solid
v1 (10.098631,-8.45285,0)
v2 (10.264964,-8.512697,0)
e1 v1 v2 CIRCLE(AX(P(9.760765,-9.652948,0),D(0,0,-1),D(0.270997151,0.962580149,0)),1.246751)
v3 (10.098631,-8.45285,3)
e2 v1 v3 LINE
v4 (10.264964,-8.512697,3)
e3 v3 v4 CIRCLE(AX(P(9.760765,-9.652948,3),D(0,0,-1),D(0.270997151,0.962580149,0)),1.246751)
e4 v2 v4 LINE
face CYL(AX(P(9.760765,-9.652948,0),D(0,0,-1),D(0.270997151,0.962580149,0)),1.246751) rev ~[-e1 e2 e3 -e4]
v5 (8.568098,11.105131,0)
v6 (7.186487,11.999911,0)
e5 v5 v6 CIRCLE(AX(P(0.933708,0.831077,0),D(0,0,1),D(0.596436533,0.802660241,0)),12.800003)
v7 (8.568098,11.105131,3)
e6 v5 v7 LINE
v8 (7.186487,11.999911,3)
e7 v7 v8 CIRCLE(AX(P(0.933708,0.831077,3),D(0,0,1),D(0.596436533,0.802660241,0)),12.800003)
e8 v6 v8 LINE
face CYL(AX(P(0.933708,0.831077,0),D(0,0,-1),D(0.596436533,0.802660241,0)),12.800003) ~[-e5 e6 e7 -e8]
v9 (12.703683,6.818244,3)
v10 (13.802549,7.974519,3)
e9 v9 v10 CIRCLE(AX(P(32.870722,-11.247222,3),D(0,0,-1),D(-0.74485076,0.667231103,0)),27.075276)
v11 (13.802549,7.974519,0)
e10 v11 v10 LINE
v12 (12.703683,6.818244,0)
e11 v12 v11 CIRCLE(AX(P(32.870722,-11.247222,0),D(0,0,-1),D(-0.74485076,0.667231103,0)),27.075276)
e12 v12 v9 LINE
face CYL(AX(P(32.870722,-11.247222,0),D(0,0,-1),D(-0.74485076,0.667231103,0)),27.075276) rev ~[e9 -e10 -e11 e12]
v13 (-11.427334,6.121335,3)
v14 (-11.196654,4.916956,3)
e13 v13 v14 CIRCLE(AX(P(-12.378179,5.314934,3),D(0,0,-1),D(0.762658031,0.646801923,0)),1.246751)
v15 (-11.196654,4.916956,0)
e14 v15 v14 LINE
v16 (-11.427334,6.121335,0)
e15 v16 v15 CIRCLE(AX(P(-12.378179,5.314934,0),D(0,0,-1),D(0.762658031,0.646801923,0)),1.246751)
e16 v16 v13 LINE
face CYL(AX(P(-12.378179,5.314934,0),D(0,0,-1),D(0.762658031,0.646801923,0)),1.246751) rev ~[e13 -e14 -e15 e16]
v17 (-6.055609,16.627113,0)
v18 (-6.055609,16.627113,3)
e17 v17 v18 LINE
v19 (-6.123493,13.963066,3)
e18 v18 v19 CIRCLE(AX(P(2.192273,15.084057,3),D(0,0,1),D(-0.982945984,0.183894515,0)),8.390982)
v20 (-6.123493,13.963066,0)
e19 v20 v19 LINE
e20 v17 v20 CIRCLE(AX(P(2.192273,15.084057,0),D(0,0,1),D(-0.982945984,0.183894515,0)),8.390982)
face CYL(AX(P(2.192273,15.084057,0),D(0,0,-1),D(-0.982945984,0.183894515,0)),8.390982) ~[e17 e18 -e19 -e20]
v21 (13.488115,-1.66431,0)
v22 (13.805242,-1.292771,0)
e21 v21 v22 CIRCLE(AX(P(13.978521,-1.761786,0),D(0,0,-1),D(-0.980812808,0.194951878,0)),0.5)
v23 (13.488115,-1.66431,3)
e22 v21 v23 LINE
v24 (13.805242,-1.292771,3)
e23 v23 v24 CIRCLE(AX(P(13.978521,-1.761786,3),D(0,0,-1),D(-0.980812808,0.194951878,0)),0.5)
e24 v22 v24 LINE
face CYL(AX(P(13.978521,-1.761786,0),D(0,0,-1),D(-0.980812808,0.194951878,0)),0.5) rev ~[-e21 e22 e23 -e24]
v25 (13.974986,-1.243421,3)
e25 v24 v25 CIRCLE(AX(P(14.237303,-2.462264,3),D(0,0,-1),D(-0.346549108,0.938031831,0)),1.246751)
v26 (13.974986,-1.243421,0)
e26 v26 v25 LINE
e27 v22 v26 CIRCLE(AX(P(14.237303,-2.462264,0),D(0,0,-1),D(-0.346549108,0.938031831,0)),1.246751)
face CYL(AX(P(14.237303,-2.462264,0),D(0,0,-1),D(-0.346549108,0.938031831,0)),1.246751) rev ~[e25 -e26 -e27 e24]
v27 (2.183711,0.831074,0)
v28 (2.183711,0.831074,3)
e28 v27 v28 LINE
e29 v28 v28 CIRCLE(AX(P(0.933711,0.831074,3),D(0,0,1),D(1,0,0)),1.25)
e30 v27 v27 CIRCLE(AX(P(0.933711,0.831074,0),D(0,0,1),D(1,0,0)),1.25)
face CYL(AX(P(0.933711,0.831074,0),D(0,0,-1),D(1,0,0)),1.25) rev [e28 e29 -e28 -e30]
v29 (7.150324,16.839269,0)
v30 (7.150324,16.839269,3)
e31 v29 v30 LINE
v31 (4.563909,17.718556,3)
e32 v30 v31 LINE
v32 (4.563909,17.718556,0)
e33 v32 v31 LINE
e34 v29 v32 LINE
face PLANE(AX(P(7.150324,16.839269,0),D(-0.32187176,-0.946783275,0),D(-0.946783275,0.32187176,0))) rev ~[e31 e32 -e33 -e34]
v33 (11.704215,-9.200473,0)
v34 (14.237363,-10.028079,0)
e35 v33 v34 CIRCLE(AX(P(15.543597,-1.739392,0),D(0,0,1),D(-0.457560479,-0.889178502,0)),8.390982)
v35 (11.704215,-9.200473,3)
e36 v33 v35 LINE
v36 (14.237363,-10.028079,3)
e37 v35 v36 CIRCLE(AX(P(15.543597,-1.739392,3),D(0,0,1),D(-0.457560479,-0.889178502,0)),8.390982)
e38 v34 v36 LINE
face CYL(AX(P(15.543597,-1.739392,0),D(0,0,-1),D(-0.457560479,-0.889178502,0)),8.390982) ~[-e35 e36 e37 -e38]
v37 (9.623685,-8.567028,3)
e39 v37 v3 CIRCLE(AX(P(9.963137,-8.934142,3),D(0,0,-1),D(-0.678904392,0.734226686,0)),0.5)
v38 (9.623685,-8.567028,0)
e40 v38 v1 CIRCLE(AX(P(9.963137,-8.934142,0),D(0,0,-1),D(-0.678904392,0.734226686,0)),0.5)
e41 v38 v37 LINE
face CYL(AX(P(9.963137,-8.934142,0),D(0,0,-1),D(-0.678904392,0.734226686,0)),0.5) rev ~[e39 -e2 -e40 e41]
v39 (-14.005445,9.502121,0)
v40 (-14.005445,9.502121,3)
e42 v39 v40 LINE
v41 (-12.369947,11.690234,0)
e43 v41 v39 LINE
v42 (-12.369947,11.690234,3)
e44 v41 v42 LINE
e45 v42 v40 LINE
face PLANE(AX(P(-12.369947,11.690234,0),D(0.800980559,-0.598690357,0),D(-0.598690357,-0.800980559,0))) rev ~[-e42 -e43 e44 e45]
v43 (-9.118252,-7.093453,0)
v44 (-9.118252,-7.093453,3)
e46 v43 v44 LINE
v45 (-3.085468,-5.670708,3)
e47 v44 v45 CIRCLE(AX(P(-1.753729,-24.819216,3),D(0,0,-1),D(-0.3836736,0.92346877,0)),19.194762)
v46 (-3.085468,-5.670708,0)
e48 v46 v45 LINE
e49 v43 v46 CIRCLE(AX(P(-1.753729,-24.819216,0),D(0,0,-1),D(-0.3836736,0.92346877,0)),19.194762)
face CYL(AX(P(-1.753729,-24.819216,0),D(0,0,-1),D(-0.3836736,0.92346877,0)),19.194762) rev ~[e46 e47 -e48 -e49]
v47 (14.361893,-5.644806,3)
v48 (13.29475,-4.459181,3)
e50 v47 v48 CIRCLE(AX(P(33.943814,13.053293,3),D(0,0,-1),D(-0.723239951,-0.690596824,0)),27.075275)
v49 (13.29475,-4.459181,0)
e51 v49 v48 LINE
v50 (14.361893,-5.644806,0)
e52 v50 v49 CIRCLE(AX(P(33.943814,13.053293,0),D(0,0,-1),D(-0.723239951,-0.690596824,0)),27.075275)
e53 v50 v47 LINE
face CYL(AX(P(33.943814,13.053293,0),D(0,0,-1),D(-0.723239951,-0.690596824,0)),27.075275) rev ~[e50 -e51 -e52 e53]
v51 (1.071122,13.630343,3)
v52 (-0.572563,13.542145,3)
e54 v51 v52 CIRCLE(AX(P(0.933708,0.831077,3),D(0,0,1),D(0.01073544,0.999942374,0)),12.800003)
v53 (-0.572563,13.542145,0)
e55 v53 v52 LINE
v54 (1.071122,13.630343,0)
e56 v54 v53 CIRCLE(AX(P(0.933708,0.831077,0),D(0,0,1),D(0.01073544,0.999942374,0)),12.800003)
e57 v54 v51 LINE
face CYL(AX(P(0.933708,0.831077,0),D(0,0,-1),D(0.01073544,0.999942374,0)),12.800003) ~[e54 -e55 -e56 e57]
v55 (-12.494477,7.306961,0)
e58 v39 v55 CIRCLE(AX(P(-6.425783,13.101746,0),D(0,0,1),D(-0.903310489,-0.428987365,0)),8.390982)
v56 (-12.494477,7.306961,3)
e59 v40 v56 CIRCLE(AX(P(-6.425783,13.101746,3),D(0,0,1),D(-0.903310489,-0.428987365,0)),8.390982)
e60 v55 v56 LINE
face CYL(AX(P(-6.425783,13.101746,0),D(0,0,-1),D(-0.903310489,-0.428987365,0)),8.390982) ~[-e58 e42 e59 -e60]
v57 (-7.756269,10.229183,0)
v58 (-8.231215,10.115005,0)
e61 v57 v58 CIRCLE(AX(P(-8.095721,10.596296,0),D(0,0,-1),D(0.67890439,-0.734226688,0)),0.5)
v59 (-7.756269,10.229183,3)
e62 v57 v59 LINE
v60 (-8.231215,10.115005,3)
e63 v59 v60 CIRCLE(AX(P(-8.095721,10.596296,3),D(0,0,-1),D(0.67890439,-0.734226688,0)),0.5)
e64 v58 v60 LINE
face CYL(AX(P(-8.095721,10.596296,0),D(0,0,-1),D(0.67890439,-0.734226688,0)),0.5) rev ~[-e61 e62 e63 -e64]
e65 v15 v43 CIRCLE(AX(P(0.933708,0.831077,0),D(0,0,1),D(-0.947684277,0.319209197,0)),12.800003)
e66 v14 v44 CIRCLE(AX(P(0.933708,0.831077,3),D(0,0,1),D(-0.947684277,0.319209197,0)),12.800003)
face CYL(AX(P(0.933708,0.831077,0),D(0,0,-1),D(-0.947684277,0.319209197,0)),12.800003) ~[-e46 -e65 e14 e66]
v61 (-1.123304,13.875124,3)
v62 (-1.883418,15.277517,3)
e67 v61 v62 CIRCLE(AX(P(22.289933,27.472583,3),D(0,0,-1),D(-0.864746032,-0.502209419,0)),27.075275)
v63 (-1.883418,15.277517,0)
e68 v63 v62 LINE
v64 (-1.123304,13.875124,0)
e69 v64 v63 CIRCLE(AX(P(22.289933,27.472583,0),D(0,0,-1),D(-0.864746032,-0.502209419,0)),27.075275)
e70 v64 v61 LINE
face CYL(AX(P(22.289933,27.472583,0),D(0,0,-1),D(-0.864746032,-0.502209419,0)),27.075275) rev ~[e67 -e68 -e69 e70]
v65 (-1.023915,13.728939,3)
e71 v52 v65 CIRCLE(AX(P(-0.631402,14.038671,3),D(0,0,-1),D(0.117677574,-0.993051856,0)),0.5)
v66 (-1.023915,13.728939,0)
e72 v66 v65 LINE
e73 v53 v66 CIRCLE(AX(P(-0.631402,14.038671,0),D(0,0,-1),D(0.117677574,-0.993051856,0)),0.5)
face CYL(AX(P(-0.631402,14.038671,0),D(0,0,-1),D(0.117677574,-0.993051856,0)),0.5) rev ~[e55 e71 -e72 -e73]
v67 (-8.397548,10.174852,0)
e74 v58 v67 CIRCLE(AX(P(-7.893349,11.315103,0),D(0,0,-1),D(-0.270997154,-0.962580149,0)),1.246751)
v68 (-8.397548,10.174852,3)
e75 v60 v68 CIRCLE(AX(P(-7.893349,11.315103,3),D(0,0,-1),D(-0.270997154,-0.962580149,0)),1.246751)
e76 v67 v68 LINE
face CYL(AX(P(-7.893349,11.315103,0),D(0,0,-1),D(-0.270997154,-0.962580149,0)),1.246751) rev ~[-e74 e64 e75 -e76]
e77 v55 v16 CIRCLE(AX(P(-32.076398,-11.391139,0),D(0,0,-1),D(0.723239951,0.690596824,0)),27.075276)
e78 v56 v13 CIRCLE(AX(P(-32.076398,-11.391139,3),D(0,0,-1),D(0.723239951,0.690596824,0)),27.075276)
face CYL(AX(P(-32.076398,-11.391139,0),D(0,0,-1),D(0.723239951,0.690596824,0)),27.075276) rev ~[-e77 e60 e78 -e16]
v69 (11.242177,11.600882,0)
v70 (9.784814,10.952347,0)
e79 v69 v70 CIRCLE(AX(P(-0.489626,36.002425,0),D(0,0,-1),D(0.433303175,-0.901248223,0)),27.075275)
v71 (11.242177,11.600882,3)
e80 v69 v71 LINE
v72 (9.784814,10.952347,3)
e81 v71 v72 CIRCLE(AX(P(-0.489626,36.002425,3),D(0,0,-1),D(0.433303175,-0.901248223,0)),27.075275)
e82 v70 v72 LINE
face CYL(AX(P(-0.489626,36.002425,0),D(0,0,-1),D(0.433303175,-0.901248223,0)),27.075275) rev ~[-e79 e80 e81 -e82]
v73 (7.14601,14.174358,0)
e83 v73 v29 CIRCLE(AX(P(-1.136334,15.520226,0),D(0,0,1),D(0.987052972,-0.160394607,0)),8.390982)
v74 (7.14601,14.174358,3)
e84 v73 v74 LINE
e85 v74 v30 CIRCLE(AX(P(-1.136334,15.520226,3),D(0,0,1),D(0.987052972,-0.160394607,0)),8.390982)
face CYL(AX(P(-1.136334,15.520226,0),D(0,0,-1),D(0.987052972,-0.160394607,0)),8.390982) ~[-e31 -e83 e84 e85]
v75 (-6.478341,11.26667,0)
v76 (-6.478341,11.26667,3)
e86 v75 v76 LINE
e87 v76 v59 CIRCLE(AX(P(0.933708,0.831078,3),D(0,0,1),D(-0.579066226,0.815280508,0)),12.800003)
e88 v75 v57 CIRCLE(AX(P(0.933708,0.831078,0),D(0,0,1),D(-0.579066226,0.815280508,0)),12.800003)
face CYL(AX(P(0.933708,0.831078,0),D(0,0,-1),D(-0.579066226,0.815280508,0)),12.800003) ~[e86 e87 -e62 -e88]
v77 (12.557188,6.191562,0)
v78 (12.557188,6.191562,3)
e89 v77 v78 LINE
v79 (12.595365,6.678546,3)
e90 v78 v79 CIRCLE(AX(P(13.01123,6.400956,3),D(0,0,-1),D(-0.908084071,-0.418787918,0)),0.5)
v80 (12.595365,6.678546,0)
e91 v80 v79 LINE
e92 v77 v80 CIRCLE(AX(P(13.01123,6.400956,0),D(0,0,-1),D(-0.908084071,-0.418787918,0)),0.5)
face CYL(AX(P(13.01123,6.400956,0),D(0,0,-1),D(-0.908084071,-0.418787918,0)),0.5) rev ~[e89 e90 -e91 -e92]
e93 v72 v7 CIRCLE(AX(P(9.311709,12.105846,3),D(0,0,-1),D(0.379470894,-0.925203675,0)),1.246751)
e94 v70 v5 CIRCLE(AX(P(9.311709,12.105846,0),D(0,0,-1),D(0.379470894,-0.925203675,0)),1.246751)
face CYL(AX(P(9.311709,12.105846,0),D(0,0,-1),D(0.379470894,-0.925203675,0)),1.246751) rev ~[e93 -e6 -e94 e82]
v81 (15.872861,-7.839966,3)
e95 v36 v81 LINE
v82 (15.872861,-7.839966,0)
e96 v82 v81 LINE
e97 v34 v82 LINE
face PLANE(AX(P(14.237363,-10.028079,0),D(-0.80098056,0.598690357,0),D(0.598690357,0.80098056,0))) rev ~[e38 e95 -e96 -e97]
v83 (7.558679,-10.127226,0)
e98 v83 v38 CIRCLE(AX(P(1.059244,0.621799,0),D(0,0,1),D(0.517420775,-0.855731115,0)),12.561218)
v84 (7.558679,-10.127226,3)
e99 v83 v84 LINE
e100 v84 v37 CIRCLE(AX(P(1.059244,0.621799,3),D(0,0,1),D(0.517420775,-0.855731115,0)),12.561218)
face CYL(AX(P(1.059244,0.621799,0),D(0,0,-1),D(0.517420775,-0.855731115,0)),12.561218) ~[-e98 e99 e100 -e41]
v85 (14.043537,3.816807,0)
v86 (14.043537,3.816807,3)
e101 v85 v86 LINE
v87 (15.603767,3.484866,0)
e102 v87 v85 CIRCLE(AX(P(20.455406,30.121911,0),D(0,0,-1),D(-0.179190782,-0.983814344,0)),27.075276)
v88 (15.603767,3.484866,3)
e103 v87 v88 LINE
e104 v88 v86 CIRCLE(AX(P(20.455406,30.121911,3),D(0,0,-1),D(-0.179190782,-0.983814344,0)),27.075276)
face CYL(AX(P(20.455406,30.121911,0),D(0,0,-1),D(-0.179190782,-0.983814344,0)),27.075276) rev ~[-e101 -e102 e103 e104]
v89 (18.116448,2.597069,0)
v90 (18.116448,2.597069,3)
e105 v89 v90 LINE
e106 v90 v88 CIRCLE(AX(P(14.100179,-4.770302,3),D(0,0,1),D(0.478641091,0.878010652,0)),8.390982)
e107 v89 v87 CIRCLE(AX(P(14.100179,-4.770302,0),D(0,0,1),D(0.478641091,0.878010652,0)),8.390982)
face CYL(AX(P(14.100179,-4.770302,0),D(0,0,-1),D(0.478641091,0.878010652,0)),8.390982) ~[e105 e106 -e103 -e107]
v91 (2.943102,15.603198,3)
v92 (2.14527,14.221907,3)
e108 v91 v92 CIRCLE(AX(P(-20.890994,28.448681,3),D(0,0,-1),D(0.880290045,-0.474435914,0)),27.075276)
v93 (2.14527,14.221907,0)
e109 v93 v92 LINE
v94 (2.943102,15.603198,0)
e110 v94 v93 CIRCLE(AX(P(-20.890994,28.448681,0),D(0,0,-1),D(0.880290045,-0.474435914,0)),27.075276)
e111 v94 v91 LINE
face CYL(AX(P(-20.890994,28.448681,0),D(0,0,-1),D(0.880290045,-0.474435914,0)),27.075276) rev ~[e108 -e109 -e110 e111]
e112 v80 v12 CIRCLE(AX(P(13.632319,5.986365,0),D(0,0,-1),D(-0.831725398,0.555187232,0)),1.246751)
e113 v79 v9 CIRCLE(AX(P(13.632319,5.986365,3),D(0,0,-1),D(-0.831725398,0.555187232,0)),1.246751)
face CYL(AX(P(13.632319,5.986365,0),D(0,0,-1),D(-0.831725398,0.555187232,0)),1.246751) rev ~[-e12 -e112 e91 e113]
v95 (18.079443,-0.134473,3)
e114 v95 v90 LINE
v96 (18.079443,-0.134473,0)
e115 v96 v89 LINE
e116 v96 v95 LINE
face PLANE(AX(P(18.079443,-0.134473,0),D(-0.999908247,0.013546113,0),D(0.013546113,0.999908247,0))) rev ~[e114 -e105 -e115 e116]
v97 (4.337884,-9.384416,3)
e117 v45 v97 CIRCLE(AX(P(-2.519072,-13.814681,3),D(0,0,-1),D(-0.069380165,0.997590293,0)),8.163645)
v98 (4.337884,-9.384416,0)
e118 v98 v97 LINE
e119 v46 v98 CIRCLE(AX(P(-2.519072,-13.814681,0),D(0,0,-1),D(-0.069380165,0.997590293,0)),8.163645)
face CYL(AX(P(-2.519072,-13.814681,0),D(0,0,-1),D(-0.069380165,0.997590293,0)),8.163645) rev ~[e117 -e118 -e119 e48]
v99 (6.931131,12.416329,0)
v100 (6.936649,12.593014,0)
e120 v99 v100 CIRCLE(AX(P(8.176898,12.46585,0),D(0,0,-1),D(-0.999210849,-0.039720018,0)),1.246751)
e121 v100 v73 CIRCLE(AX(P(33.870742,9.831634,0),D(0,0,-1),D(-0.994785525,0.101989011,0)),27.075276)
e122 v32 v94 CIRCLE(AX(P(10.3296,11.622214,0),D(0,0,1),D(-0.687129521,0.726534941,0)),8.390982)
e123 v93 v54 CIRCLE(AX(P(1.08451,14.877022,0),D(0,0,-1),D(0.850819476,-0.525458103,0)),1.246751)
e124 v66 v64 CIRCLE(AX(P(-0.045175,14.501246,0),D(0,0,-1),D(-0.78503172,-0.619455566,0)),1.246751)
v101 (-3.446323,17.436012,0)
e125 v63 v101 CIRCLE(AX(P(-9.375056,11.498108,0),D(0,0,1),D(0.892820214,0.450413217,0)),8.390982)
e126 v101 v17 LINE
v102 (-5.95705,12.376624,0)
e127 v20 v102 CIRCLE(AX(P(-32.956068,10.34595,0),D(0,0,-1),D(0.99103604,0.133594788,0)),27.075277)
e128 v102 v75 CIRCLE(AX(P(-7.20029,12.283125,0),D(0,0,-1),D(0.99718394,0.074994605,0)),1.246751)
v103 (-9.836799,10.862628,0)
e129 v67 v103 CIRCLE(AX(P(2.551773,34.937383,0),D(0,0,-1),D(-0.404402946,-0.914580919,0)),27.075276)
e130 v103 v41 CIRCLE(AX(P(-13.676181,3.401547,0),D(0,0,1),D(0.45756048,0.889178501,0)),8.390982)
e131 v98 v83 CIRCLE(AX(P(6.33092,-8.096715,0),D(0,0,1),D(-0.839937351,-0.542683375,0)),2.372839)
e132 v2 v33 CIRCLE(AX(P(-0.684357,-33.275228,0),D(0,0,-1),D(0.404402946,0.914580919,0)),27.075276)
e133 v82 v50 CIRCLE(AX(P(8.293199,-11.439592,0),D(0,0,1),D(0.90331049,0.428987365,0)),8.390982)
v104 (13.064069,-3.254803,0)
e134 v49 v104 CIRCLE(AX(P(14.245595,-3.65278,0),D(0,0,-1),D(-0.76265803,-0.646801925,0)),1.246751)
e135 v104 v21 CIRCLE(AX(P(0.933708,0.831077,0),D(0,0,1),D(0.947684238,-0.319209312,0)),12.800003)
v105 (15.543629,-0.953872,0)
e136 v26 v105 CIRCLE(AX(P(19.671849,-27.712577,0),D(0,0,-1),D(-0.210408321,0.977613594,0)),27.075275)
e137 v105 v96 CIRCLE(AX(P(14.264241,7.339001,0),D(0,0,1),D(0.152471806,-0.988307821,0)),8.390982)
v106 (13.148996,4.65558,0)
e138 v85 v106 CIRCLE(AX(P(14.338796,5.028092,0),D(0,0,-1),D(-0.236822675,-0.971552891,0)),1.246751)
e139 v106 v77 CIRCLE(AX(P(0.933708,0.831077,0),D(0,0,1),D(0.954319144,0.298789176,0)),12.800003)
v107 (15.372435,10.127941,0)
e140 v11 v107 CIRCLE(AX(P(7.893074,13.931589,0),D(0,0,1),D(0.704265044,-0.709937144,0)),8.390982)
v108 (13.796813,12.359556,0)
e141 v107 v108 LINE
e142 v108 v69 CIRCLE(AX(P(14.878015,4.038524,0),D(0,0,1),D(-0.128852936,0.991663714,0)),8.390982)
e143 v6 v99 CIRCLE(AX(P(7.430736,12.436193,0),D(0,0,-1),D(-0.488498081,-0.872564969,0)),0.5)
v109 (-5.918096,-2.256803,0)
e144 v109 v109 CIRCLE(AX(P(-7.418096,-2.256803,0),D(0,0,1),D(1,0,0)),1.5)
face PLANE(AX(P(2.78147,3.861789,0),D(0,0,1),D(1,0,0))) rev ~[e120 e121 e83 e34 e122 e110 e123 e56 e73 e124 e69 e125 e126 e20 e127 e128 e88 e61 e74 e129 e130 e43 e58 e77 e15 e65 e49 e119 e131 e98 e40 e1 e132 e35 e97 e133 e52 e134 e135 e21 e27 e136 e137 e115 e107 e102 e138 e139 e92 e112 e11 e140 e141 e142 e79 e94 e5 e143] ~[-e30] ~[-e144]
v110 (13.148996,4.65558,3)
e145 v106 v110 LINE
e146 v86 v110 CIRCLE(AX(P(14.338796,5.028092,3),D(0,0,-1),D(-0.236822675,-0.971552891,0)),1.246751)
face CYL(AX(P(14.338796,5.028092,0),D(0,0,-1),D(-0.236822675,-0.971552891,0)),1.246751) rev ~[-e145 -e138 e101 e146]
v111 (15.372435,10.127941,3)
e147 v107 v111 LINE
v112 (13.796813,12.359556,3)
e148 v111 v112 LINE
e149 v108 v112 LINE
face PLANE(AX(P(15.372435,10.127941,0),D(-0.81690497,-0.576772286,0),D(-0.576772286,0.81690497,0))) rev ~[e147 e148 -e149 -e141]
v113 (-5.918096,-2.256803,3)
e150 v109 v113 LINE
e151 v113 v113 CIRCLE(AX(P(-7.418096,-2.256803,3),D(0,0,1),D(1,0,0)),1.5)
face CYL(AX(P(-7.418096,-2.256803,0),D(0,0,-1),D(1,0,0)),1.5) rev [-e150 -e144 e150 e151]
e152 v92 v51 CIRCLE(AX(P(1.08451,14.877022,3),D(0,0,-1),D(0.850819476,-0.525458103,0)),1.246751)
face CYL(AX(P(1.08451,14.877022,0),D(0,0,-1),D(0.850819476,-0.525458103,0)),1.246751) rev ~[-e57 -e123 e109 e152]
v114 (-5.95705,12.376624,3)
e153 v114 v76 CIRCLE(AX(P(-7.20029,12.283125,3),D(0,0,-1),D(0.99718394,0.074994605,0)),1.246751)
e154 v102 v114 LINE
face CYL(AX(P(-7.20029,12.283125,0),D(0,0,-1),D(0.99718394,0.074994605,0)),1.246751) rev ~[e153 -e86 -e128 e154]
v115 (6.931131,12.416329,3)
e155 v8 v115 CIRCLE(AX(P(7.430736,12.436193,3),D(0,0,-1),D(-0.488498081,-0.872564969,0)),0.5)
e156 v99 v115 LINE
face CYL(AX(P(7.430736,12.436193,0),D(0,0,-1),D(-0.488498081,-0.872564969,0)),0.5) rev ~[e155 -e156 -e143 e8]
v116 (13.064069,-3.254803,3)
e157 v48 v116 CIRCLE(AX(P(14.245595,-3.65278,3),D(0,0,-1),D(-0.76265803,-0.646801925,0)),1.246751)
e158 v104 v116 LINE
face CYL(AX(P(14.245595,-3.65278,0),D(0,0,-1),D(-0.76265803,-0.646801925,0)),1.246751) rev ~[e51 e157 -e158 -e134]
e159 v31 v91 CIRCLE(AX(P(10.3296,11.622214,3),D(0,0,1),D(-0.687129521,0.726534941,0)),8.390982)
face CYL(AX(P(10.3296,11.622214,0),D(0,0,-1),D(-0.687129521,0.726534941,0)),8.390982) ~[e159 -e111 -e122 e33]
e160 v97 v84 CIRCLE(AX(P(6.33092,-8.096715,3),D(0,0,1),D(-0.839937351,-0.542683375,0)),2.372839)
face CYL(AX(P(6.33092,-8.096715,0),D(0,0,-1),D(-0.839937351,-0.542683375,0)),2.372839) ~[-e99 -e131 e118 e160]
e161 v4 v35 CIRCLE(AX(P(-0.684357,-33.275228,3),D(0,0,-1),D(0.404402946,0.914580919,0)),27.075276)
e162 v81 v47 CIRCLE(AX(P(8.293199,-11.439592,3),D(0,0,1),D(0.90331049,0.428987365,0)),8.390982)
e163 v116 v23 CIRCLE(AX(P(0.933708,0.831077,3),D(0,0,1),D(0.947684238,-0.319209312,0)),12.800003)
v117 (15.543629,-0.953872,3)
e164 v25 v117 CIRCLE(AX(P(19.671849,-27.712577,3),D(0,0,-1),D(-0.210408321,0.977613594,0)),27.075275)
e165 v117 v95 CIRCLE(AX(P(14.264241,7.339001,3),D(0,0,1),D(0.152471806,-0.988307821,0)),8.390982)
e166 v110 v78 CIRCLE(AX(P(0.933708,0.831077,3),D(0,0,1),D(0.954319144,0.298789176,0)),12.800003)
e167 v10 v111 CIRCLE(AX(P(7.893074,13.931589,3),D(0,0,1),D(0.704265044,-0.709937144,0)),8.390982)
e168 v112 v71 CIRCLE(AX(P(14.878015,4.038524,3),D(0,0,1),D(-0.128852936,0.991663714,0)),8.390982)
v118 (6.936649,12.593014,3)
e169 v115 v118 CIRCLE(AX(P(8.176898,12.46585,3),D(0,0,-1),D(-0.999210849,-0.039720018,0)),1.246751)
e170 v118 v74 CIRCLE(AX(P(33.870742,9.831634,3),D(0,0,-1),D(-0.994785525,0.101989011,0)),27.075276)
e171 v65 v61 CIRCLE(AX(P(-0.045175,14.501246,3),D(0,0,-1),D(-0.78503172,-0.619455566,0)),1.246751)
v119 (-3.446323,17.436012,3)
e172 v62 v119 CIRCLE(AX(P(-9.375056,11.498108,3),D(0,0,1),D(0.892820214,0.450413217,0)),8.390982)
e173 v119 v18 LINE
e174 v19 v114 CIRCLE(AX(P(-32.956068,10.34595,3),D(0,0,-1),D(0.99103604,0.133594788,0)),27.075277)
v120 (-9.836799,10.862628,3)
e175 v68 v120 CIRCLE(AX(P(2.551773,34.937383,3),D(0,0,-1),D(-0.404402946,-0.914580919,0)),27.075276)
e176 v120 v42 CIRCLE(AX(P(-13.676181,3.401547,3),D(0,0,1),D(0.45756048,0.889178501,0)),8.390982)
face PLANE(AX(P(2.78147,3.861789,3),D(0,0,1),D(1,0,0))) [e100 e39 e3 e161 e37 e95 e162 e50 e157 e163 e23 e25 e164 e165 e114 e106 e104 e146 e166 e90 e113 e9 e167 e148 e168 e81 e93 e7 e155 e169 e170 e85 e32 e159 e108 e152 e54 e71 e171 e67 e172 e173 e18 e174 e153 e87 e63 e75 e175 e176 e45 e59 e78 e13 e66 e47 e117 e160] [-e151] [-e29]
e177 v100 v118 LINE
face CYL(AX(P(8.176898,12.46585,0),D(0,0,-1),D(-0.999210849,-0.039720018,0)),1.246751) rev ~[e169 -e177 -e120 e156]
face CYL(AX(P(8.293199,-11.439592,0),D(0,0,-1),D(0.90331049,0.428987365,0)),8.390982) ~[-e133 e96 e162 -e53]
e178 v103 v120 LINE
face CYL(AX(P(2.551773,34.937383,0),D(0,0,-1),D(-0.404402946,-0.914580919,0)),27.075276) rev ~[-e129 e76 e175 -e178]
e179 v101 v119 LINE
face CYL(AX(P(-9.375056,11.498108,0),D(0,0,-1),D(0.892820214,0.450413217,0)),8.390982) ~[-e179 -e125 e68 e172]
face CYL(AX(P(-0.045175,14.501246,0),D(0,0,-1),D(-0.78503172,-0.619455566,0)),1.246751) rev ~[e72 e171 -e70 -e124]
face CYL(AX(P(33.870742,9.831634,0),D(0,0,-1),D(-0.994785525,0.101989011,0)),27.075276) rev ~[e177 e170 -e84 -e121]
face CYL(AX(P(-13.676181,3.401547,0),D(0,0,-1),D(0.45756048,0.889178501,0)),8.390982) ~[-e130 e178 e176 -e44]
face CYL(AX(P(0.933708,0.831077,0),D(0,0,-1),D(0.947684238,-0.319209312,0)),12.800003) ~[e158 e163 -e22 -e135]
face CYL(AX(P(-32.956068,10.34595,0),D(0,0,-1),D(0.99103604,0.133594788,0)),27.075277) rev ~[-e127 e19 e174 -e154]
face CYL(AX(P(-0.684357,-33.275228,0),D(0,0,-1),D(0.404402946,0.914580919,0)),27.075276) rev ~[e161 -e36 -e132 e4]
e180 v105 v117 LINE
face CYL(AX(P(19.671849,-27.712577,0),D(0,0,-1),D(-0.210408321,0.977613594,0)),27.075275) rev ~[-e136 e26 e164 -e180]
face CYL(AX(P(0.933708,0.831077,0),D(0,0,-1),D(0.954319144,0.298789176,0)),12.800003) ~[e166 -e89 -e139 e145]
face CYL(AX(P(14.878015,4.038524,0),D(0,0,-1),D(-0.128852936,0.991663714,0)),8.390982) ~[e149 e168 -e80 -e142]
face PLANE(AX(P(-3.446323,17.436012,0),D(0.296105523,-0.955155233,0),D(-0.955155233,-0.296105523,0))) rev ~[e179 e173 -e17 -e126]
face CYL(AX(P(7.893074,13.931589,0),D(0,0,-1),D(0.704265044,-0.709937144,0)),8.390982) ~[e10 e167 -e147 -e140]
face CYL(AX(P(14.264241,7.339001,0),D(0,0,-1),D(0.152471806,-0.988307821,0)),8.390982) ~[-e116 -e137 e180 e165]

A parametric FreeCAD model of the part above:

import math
import FreeCAD as App
import Part
import Sketcher
from FreeCAD import Vector

doc = App.newDocument("Part")
body = doc.addObject("PartDesign::Body", "Body")

sketch1 = body.newObject("Sketcher::SketchObject", "Sketch")
sketch1.AttachmentSupport = (doc.getObject("XY_Plane"), [""])
sketch1.MapMode = "FlatFace"
sketch1.addGeometry([
    Part.LineSegment(Vector(18.079443, -0.134473, 0), Vector(18.116448, 2.597069, 0)),
    Part.ArcOfCircle(Part.Circle(Vector(14.100179, -4.770302, 0), Vector(0, 0, 1), 8.390982), math.radians(61.403313), math.radians(79.677367)),
    Part.ArcOfCircle(Part.Circle(Vector(20.455406, 30.121911, 0), Vector(0, 0, 1), 27.075276), math.radians(-103.698718), math.radians(-100.322629)),
    Part.ArcOfCircle(Part.Circle(Vector(14.338796, 5.028092, 0), Vector(0, 0, 1), 1.246751), math.radians(-162.615291), math.radians(-103.699088)),
    Part.ArcOfCircle(Part.Circle(Vector(0.933708, 0.831077, 0), Vector(0, 0, 1), 12.800003), math.radians(17.384893), math.radians(24.758077)),
    Part.ArcOfCircle(Part.Circle(Vector(13.01123, 6.400956, 0), Vector(0, 0, 1), 0.5), math.radians(146.276908), math.radians(204.758087)),
    Part.ArcOfCircle(Part.Circle(Vector(13.632319, 5.986365, 0), Vector(0, 0, 1), 1.246751), math.radians(138.145829), math.radians(146.276388)),
    Part.ArcOfCircle(Part.Circle(Vector(32.870722, -11.247222, 0), Vector(0, 0, 1), 27.075276), math.radians(134.770207), math.radians(138.146282)),
    Part.ArcOfCircle(Part.Circle(Vector(7.893074, 13.931589, 0), Vector(0, 0, 1), 8.390982), math.radians(-45.229801), math.radians(-26.955725)),
    Part.LineSegment(Vector(15.372435, 10.127941, 0), Vector(13.796813, 12.359556, 0)),
    Part.ArcOfCircle(Part.Circle(Vector(14.878015, 4.038524, 0), Vector(0, 0, 1), 8.390982), math.radians(97.403313), math.radians(115.677367)),
    Part.ArcOfCircle(Part.Circle(Vector(-0.489626, 36.002425, 0), Vector(0, 0, 1), 27.075275), math.radians(-67.698718), math.radians(-64.322629)),
    Part.ArcOfCircle(Part.Circle(Vector(9.311709, 12.105846, 0), Vector(0, 0, 1), 1.246751), math.radians(-126.615291), math.radians(-67.699088)),
    Part.ArcOfCircle(Part.Circle(Vector(0.933708, 0.831077, 0), Vector(0, 0, 1), 12.800003), math.radians(53.384893), math.radians(60.758077)),
    Part.ArcOfCircle(Part.Circle(Vector(7.430736, 12.436193, 0), Vector(0, 0, 1), 0.5), math.radians(-177.723092), math.radians(-119.241913)),
    Part.ArcOfCircle(Part.Circle(Vector(8.176898, 12.46585, 0), Vector(0, 0, 1), 1.246751), math.radians(174.145829), math.radians(182.276388)),
    Part.ArcOfCircle(Part.Circle(Vector(33.870742, 9.831634, 0), Vector(0, 0, 1), 27.075276), math.radians(170.770207), math.radians(174.146282)),
    Part.ArcOfCircle(Part.Circle(Vector(-1.136334, 15.520226, 0), Vector(0, 0, 1), 8.390982), math.radians(-9.229801), math.radians(9.044275)),
    Part.LineSegment(Vector(7.150324, 16.839269, 0), Vector(4.563909, 17.718556, 0)),
    Part.ArcOfCircle(Part.Circle(Vector(10.3296, 11.622214, 0), Vector(0, 0, 1), 8.390982), math.radians(133.403313), math.radians(151.677367)),
    Part.ArcOfCircle(Part.Circle(Vector(-20.890994, 28.448681, 0), Vector(0, 0, 1), 27.075276), math.radians(-31.698718), math.radians(-28.322629)),
    Part.ArcOfCircle(Part.Circle(Vector(1.08451, 14.877022, 0), Vector(0, 0, 1), 1.246751), math.radians(-90.615291), math.radians(-31.699088)),
    Part.ArcOfCircle(Part.Circle(Vector(0.933708, 0.831077, 0), Vector(0, 0, 1), 12.800003), math.radians(89.384893), math.radians(96.758077)),
    Part.ArcOfCircle(Part.Circle(Vector(-0.631402, 14.038671, 0), Vector(0, 0, 1), 0.5), math.radians(-141.723092), math.radians(-83.241912)),
    Part.ArcOfCircle(Part.Circle(Vector(-0.045175, 14.501246, 0), Vector(0, 0, 1), 1.246751), math.radians(-149.85417), math.radians(-141.723612)),
    Part.ArcOfCircle(Part.Circle(Vector(22.289933, 27.472583, 0), Vector(0, 0, 1), 27.075275), math.radians(-153.229793), math.radians(-149.853718)),
    Part.ArcOfCircle(Part.Circle(Vector(-9.375056, 11.498108, 0), Vector(0, 0, 1), 8.390982), math.radians(26.770199), math.radians(45.044275)),
    Part.LineSegment(Vector(-3.446323, 17.436012, 0), Vector(-6.055609, 16.627113, 0)),
    Part.ArcOfCircle(Part.Circle(Vector(2.192273, 15.084057, 0), Vector(0, 0, 1), 8.390982), math.radians(169.403313), math.radians(187.677367)),
    Part.ArcOfCircle(Part.Circle(Vector(-32.956068, 10.34595, 0), Vector(0, 0, 1), 27.075277), math.radians(4.301282), math.radians(7.677371)),
    Part.ArcOfCircle(Part.Circle(Vector(-7.20029, 12.283125, 0), Vector(0, 0, 1), 1.246751), math.radians(-54.615291), math.radians(4.300912)),
    Part.ArcOfCircle(Part.Circle(Vector(0.933708, 0.831078, 0), Vector(0, 0, 1), 12.800003), math.radians(125.384893), math.radians(132.758077)),
    Part.ArcOfCircle(Part.Circle(Vector(-8.095721, 10.596296, 0), Vector(0, 0, 1), 0.5), math.radians(-105.723092), math.radians(-47.241913)),
    Part.ArcOfCircle(Part.Circle(Vector(-7.893349, 11.315103, 0), Vector(0, 0, 1), 1.246751), math.radians(-113.854171), math.radians(-105.723612)),
    Part.ArcOfCircle(Part.Circle(Vector(2.551773, 34.937383, 0), Vector(0, 0, 1), 27.075276), math.radians(-117.229793), math.radians(-113.853718)),
    Part.ArcOfCircle(Part.Circle(Vector(-13.676181, 3.401547, 0), Vector(0, 0, 1), 8.390982), math.radians(62.770199), math.radians(81.044275)),
    Part.LineSegment(Vector(-12.369947, 11.690234, 0), Vector(-14.005445, 9.502121, 0)),
    Part.ArcOfCircle(Part.Circle(Vector(-6.425783, 13.101746, 0), Vector(0, 0, 1), 8.390982), math.radians(-154.596687), math.radians(-136.322633)),
    Part.ArcOfCircle(Part.Circle(Vector(-32.076398, -11.391139, 0), Vector(0, 0, 1), 27.075276), math.radians(40.301282), math.radians(43.677371)),
    Part.ArcOfCircle(Part.Circle(Vector(-12.378179, 5.314934, 0), Vector(0, 0, 1), 1.246751), math.radians(-18.615291), math.radians(40.300912)),
    Part.ArcOfCircle(Part.Circle(Vector(0.933708, 0.831077, 0), Vector(0, 0, 1), 12.800003), math.radians(161.384893), math.radians(218.250715)),
    Part.ArcOfCircle(Part.Circle(Vector(-1.753729, -24.819216, 0), Vector(0, 0, 1), 19.194762), math.radians(93.978396), math.radians(112.56142)),
    Part.ArcOfCircle(Part.Circle(Vector(-2.519072, -13.814681, 0), Vector(0, 0, 1), 8.163645), math.radians(32.86642), math.radians(93.978387)),
    Part.ArcOfCircle(Part.Circle(Vector(6.33092, -8.096715, 0), Vector(0, 0, 1), 2.372839), math.radians(-147.133505), math.radians(-58.840529)),
    Part.ArcOfCircle(Part.Circle(Vector(1.059244, 0.621799, 0), Vector(0, 0, 1), 12.561218), math.radians(-58.840599), math.radians(-47.014274)),
    Part.ArcOfCircle(Part.Circle(Vector(9.963137, -8.934142, 0), Vector(0, 0, 1), 0.5), math.radians(74.276908), math.radians(132.758088)),
    Part.ArcOfCircle(Part.Circle(Vector(9.760765, -9.652948, 0), Vector(0, 0, 1), 1.246751), math.radians(66.14583), math.radians(74.276388)),
    Part.ArcOfCircle(Part.Circle(Vector(-0.684357, -33.275228, 0), Vector(0, 0, 1), 27.075276), math.radians(62.770207), math.radians(66.146282)),
    Part.ArcOfCircle(Part.Circle(Vector(15.543597, -1.739392, 0), Vector(0, 0, 1), 8.390982), math.radians(-117.229801), math.radians(-98.955725)),
    Part.LineSegment(Vector(14.237363, -10.028079, 0), Vector(15.872861, -7.839966, 0)),
    Part.ArcOfCircle(Part.Circle(Vector(8.293199, -11.439592, 0), Vector(0, 0, 1), 8.390982), math.radians(25.403313), math.radians(43.677367)),
    Part.ArcOfCircle(Part.Circle(Vector(33.943814, 13.053293, 0), Vector(0, 0, 1), 27.075275), math.radians(-139.698718), math.radians(-136.322629)),
    Part.ArcOfCircle(Part.Circle(Vector(14.245595, -3.65278, 0), Vector(0, 0, 1), 1.246751), math.radians(161.38478), math.radians(220.300912)),
    Part.ArcOfCircle(Part.Circle(Vector(0.933708, 0.831077, 0), Vector(0, 0, 1), 12.800003), math.radians(-18.615114), math.radians(-11.241923)),
    Part.ArcOfCircle(Part.Circle(Vector(13.978521, -1.761786, 0), Vector(0, 0, 1), 0.5), math.radians(110.276908), math.radians(168.758088)),
    Part.ArcOfCircle(Part.Circle(Vector(14.237303, -2.462264, 0), Vector(0, 0, 1), 1.246751), math.radians(102.14583), math.radians(110.276388)),
    Part.ArcOfCircle(Part.Circle(Vector(19.671849, -27.712577, 0), Vector(0, 0, 1), 27.075275), math.radians(98.770207), math.radians(102.146282)),
    Part.ArcOfCircle(Part.Circle(Vector(14.264241, 7.339001, 0), Vector(0, 0, 1), 8.390982), math.radians(-81.229801), math.radians(-62.955725)),
    Part.Circle(Vector(-7.418096, -2.256803, 0), Vector(0, 0, 1), 1.5),
    Part.Circle(Vector(0.933711, 0.831074, 0), Vector(0, 0, 1), 1.25),
], False)
sketch1.addConstraint([
    Sketcher.Constraint("Coincident", 0, 2, 1, 1),
    Sketcher.Constraint("Coincident", 1, 2, 2, 2),
    Sketcher.Constraint("Coincident", 2, 1, 3, 2),
    Sketcher.Constraint("Coincident", 3, 1, 4, 1),
    Sketcher.Constraint("Coincident", 4, 2, 5, 2),
    Sketcher.Constraint("Coincident", 5, 1, 6, 2),
    Sketcher.Constraint("Coincident", 6, 1, 7, 2),
    Sketcher.Constraint("Coincident", 7, 1, 8, 1),
    Sketcher.Constraint("Coincident", 8, 2, 9, 1),
    Sketcher.Constraint("Coincident", 9, 2, 10, 1),
    Sketcher.Constraint("Coincident", 10, 2, 11, 2),
    Sketcher.Constraint("Coincident", 11, 1, 12, 2),
    Sketcher.Constraint("Coincident", 12, 1, 13, 1),
    Sketcher.Constraint("Coincident", 13, 2, 14, 2),
    Sketcher.Constraint("Coincident", 14, 1, 15, 2),
    Sketcher.Constraint("Coincident", 15, 1, 16, 2),
    Sketcher.Constraint("Coincident", 16, 1, 17, 1),
    Sketcher.Constraint("Coincident", 17, 2, 18, 1),
    Sketcher.Constraint("Coincident", 18, 2, 19, 1),
    Sketcher.Constraint("Coincident", 19, 2, 20, 2),
    Sketcher.Constraint("Coincident", 20, 1, 21, 2),
    Sketcher.Constraint("Coincident", 21, 1, 22, 1),
    Sketcher.Constraint("Coincident", 22, 2, 23, 2),
    Sketcher.Constraint("Coincident", 23, 1, 24, 2),
    Sketcher.Constraint("Coincident", 24, 1, 25, 2),
    Sketcher.Constraint("Coincident", 25, 1, 26, 1),
    Sketcher.Constraint("Coincident", 26, 2, 27, 1),
    Sketcher.Constraint("Coincident", 27, 2, 28, 1),
    Sketcher.Constraint("Coincident", 28, 2, 29, 2),
    Sketcher.Constraint("Coincident", 29, 1, 30, 2),
    Sketcher.Constraint("Coincident", 30, 1, 31, 1),
    Sketcher.Constraint("Coincident", 31, 2, 32, 2),
    Sketcher.Constraint("Coincident", 32, 1, 33, 2),
    Sketcher.Constraint("Coincident", 33, 1, 34, 2),
    Sketcher.Constraint("Coincident", 34, 1, 35, 1),
    Sketcher.Constraint("Coincident", 35, 2, 36, 1),
    Sketcher.Constraint("Coincident", 36, 2, 37, 1),
    Sketcher.Constraint("Coincident", 37, 2, 38, 2),
    Sketcher.Constraint("Coincident", 38, 1, 39, 2),
    Sketcher.Constraint("Coincident", 39, 1, 40, 1),
    Sketcher.Constraint("Coincident", 40, 2, 41, 2),
    Sketcher.Constraint("Coincident", 41, 1, 42, 2),
    Sketcher.Constraint("Coincident", 42, 1, 43, 1),
    Sketcher.Constraint("Coincident", 43, 2, 44, 1),
    Sketcher.Constraint("Coincident", 44, 2, 45, 2),
    Sketcher.Constraint("Coincident", 45, 1, 46, 2),
    Sketcher.Constraint("Coincident", 46, 1, 47, 2),
    Sketcher.Constraint("Coincident", 47, 1, 48, 1),
    Sketcher.Constraint("Coincident", 48, 2, 49, 1),
    Sketcher.Constraint("Coincident", 49, 2, 50, 1),
    Sketcher.Constraint("Coincident", 50, 2, 51, 2),
    Sketcher.Constraint("Coincident", 51, 1, 52, 2),
    Sketcher.Constraint("Coincident", 52, 1, 53, 1),
    Sketcher.Constraint("Coincident", 53, 2, 54, 2),
    Sketcher.Constraint("Coincident", 54, 1, 55, 2),
    Sketcher.Constraint("Coincident", 55, 1, 56, 2),
    Sketcher.Constraint("Coincident", 56, 1, 57, 1),
    Sketcher.Constraint("Coincident", 57, 2, 0, 1),
    Sketcher.Constraint("Coincident", 13, 3, 4, 3),
    Sketcher.Constraint("Coincident", 22, 3, 4, 3),
    Sketcher.Constraint("Coincident", 31, 3, 4, 3),
    Sketcher.Constraint("Coincident", 40, 3, 4, 3),
    Sketcher.Constraint("Coincident", 53, 3, 4, 3),
    Sketcher.Constraint("Coincident", 59, 3, 4, 3),
    Sketcher.Constraint("Diameter", 58, 3.0),
    Sketcher.Constraint("Diameter", 59, 2.5),
    Sketcher.Constraint("Radius", 5, 0.5),
    Sketcher.Constraint("Radius", 14, 0.5),
    Sketcher.Constraint("Radius", 23, 0.5),
    Sketcher.Constraint("Radius", 32, 0.5),
    Sketcher.Constraint("Radius", 45, 0.5),
    Sketcher.Constraint("Radius", 54, 0.5),
    Sketcher.Constraint("Radius", 3, 1.246751),
    Sketcher.Constraint("Radius", 6, 1.246751),
    Sketcher.Constraint("Radius", 12, 1.246751),
    Sketcher.Constraint("Radius", 15, 1.246751),
    Sketcher.Constraint("Radius", 21, 1.246751),
    Sketcher.Constraint("Radius", 24, 1.246751),
    Sketcher.Constraint("Radius", 30, 1.246751),
    Sketcher.Constraint("Radius", 33, 1.246751),
    Sketcher.Constraint("Radius", 39, 1.246751),
    Sketcher.Constraint("Radius", 41, 19.194762),
    Sketcher.Constraint("Radius", 43, 2.372839),
    Sketcher.Constraint("Radius", 46, 1.246751),
    Sketcher.Constraint("Radius", 52, 1.246751),
    Sketcher.Constraint("Radius", 55, 1.246751),
    Sketcher.Constraint("DistanceY", -1, 1, 57, 3, 7.339001),
    Sketcher.Constraint("Radius", 1, 8.390982),
    Sketcher.Constraint("Radius", 2, 27.075276),
    Sketcher.Constraint("Radius", 4, 12.800003),
    Sketcher.Constraint("Radius", 7, 27.075276),
    Sketcher.Constraint("Radius", 8, 8.390982),
    Sketcher.Constraint("Radius", 10, 8.390982),
    Sketcher.Constraint("Radius", 11, 27.075275),
    Sketcher.Constraint("Radius", 13, 12.800003),
    Sketcher.Constraint("Radius", 16, 27.075276),
    Sketcher.Constraint("Radius", 17, 8.390982),
    Sketcher.Constraint("Radius", 19, 8.390982),
    Sketcher.Constraint("Radius", 20, 27.075276),
    Sketcher.Constraint("Radius", 22, 12.800003),
    Sketcher.Constraint("Radius", 25, 27.075275),
    Sketcher.Constraint("Radius", 26, 8.390982),
    Sketcher.Constraint("Radius", 28, 8.390982),
    Sketcher.Constraint("Radius", 29, 27.075277),
    Sketcher.Constraint("Radius", 31, 12.800003),
    Sketcher.Constraint("Radius", 34, 27.075276),
    Sketcher.Constraint("Radius", 35, 8.390982),
    Sketcher.Constraint("Radius", 37, 8.390982),
    Sketcher.Constraint("Radius", 38, 27.075276),
    Sketcher.Constraint("Radius", 40, 12.800003),
    Sketcher.Constraint("Radius", 42, 8.163645),
    Sketcher.Constraint("Radius", 44, 12.561218),
    Sketcher.Constraint("Radius", 47, 27.075276),
    Sketcher.Constraint("Radius", 48, 8.390982),
    Sketcher.Constraint("Radius", 50, 8.390982),
    Sketcher.Constraint("Radius", 51, 27.075275),
    Sketcher.Constraint("Radius", 53, 12.800003),
    Sketcher.Constraint("Radius", 56, 27.075275),
    Sketcher.Constraint("Radius", 57, 8.390982),
    Sketcher.Constraint("DistanceX", -1, 1, 15, 3, 8.176898),
    Sketcher.Constraint("DistanceX", -1, 1, 19, 3, 10.3296),
    Sketcher.Constraint("DistanceX", 23, 3, -1, 1, 0.631402),
    Sketcher.Constraint("DistanceX", 38, 3, -1, 1, 32.076398),
    Sketcher.Constraint("DistanceY", -1, 1, 44, 3, 0.621799),
    Sketcher.Constraint("DistanceX", -1, 1, 50, 3, 8.293199),
    Sketcher.Constraint("DistanceX", 34, 1, -1, 1, 9.836799),
    Sketcher.Constraint("DistanceX", -1, 1, 1, 3, 14.100179),
    Sketcher.Constraint("DistanceY", -1, 1, 2, 3, 30.121911),
    Sketcher.Constraint("DistanceY", -1, 1, 3, 3, 5.028092),
    Sketcher.Constraint("DistanceX", -1, 1, 4, 3, 0.933708),
    Sketcher.Constraint("DistanceX", -1, 1, 5, 3, 13.01123),
    Sketcher.Constraint("DistanceX", -1, 1, 6, 3, 13.632319),
    Sketcher.Constraint("DistanceY", -1, 1, 8, 3, 13.931589),
    Sketcher.Constraint("DistanceX", -1, 1, 12, 3, 9.311709),
    Sketcher.Constraint("DistanceY", -1, 1, 15, 3, 12.46585),
    Sketcher.Constraint("DistanceY", -1, 1, 20, 3, 28.448681),
    Sketcher.Constraint("DistanceX", -1, 1, 21, 3, 1.08451),
    Sketcher.Constraint("DistanceY", -1, 1, 23, 3, 14.038671),
    Sketcher.Constraint("DistanceY", -1, 1, 26, 3, 11.498108),
    Sketcher.Constraint("DistanceX", 29, 3, -1, 1, 32.956068),
    Sketcher.Constraint("DistanceY", -1, 1, 29, 3, 10.34595),
    Sketcher.Constraint("DistanceX", 32, 3, -1, 1, 8.095721),
    Sketcher.Constraint("DistanceX", 33, 3, -1, 1, 7.893349),
    Sketcher.Constraint("DistanceX", 35, 3, -1, 1, 13.676181),
    Sketcher.Constraint("DistanceY", 38, 3, -1, 1, 11.391139),
    Sketcher.Constraint("DistanceX", 41, 3, -1, 1, 1.753729),
    Sketcher.Constraint("DistanceY", 42, 3, -1, 1, 13.814681),
    Sketcher.Constraint("DistanceX", -1, 1, 43, 3, 6.33092),
    Sketcher.Constraint("DistanceY", 45, 3, -1, 1, 8.934142),
    Sketcher.Constraint("DistanceY", 46, 3, -1, 1, 9.652948),
    Sketcher.Constraint("DistanceY", 47, 3, -1, 1, 33.275228),
    Sketcher.Constraint("DistanceY", 50, 3, -1, 1, 11.439592),
    Sketcher.Constraint("DistanceY", 52, 3, -1, 1, 3.65278),
    Sketcher.Constraint("DistanceX", -1, 1, 54, 3, 13.978521),
    Sketcher.Constraint("DistanceX", -1, 1, 56, 3, 19.671849),
    Sketcher.Constraint("DistanceX", -1, 1, 57, 3, 14.264241),
    Sketcher.Constraint("DistanceX", -1, 1, 0, 2, 18.116448),
    Sketcher.Constraint("DistanceY", -1, 1, 3, 1, 4.65558),
    Sketcher.Constraint("DistanceX", -1, 1, 4, 2, 12.557188),
    Sketcher.Constraint("DistanceX", -1, 1, 7, 1, 13.802549),
    Sketcher.Constraint("DistanceY", -1, 1, 7, 1, 7.974519),
    Sketcher.Constraint("DistanceY", -1, 1, 8, 2, 10.127941),
    Sketcher.Constraint("DistanceY", -1, 1, 10, 2, 11.600882),
    Sketcher.Constraint("DistanceY", -1, 1, 12, 1, 11.105131),
    Sketcher.Constraint("DistanceY", -1, 1, 13, 2, 11.999911),
    Sketcher.Constraint("DistanceX", -1, 1, 14, 1, 6.931131),
    Sketcher.Constraint("DistanceX", -1, 1, 15, 1, 6.936649),
    Sketcher.Constraint("DistanceX", -1, 1, 16, 1, 7.14601),
    Sketcher.Constraint("DistanceY", -1, 1, 17, 2, 16.839269),
    Sketcher.Constraint("DistanceX", -1, 1, 18, 2, 4.563909),
    Sketcher.Constraint("DistanceX", -1, 1, 20, 1, 2.14527),
    Sketcher.Constraint("DistanceX", -1, 1, 21, 1, 1.071122),
    Sketcher.Constraint("DistanceY", -1, 1, 23, 1, 13.728939),
    Sketcher.Constraint("DistanceY", -1, 1, 26, 2, 17.436012),
    Sketcher.Constraint("DistanceX", 27, 2, -1, 1, 6.055609),
    Sketcher.Constraint("DistanceX", 29, 1, -1, 1, 5.95705),
    Sketcher.Constraint("DistanceX", 30, 1, -1, 1, 6.478341),
    Sketcher.Constraint("DistanceX", 31, 2, -1, 1, 7.756269),
    Sketcher.Constraint("DistanceY", -1, 1, 36, 2, 9.502121),
    Sketcher.Constraint("DistanceY", -1, 1, 37, 2, 7.306961),
    Sketcher.Constraint("DistanceX", -1, 1, 43, 2, 7.558679),
    Sketcher.Constraint("DistanceY", 44, 2, -1, 1, 8.567028),
    Sketcher.Constraint("DistanceX", -1, 1, 45, 1, 10.098631),
    Sketcher.Constraint("DistanceY", 45, 1, -1, 1, 8.45285),
    Sketcher.Constraint("DistanceY", 48, 2, -1, 1, 10.028079),
    Sketcher.Constraint("DistanceX", -1, 1, 49, 2, 15.872861),
    Sketcher.Constraint("DistanceX", -1, 1, 51, 1, 13.29475),
    Sketcher.Constraint("DistanceX", -1, 1, 52, 1, 13.064069),
    Sketcher.Constraint("DistanceY", 53, 2, -1, 1, 1.66431),
    Sketcher.Constraint("DistanceY", 54, 1, -1, 1, 1.292771),
    Sketcher.Constraint("DistanceY", 55, 1, -1, 1, 1.243421),
    Sketcher.Constraint("DistanceX", -1, 1, 56, 1, 15.543629),
    Sketcher.Constraint("Distance", 0, 2.731793),
    Sketcher.Constraint("Distance", 9, 2.731793),
    Sketcher.Constraint("Distance", 18, 2.731793),
    Sketcher.Constraint("Distance", 27, 2.731793),
    Sketcher.Constraint("Distance", 36, 2.731793),
    Sketcher.Constraint("Distance", 49, 2.731793),
    Sketcher.Constraint("DistanceX", -1, 1, 10, 3, 14.878015),
    Sketcher.Constraint("DistanceY", -1, 1, 10, 3, 4.038524),
    Sketcher.Constraint("DistanceX", -1, 1, 16, 3, 33.870742),
    Sketcher.Constraint("DistanceX", 24, 3, -1, 1, 0.045175),
    Sketcher.Constraint("DistanceX", -1, 1, 25, 3, 22.289933),
    Sketcher.Constraint("DistanceX", -1, 1, 34, 3, 2.551773),
    Sketcher.Constraint("DistanceX", 37, 3, -1, 1, 6.425783),
    Sketcher.Constraint("DistanceX", 58, 3, -1, 1, 7.418096),
    Sketcher.Constraint("DistanceY", 58, 3, -1, 1, 2.256803),
    Sketcher.Constraint("DistanceX", -1, 1, 1, 2, 15.603767),
    Sketcher.Constraint("DistanceX", -1, 1, 2, 1, 14.043537),
    Sketcher.Constraint("DistanceX", -1, 1, 5, 1, 12.595365),
    Sketcher.Constraint("DistanceX", -1, 1, 6, 1, 12.703683),
    Sketcher.Constraint("DistanceX", -1, 1, 11, 1, 9.784814),
    Sketcher.Constraint("DistanceX", -1, 1, 19, 2, 2.943102),
    Sketcher.Constraint("DistanceX", 22, 2, -1, 1, 0.572563),
    Sketcher.Constraint("DistanceX", 24, 1, -1, 1, 1.123304),
    Sketcher.Constraint("DistanceX", 25, 1, -1, 1, 1.883418),
    Sketcher.Constraint("DistanceX", 28, 2, -1, 1, 6.123493),
    Sketcher.Constraint("DistanceX", 32, 1, -1, 1, 8.231215),
    Sketcher.Constraint("DistanceX", 33, 1, -1, 1, 8.397548),
    Sketcher.Constraint("DistanceX", 38, 1, -1, 1, 11.427334),
    Sketcher.Constraint("DistanceX", 39, 1, -1, 1, 11.196654),
    Sketcher.Constraint("DistanceX", 41, 1, -1, 1, 3.085468),
    Sketcher.Constraint("DistanceX", -1, 1, 42, 1, 4.337884),
    Sketcher.Constraint("DistanceX", -1, 1, 46, 1, 10.264964),
    Sketcher.Constraint("DistanceX", -1, 1, 47, 1, 11.704215),
    Sketcher.Constraint("DistanceX", -1, 1, 50, 2, 14.361893),
])
pad1 = body.newObject("PartDesign::Pad", "Pad")
pad1.Profile = sketch1
pad1.Length = 3

doc.recompute()
